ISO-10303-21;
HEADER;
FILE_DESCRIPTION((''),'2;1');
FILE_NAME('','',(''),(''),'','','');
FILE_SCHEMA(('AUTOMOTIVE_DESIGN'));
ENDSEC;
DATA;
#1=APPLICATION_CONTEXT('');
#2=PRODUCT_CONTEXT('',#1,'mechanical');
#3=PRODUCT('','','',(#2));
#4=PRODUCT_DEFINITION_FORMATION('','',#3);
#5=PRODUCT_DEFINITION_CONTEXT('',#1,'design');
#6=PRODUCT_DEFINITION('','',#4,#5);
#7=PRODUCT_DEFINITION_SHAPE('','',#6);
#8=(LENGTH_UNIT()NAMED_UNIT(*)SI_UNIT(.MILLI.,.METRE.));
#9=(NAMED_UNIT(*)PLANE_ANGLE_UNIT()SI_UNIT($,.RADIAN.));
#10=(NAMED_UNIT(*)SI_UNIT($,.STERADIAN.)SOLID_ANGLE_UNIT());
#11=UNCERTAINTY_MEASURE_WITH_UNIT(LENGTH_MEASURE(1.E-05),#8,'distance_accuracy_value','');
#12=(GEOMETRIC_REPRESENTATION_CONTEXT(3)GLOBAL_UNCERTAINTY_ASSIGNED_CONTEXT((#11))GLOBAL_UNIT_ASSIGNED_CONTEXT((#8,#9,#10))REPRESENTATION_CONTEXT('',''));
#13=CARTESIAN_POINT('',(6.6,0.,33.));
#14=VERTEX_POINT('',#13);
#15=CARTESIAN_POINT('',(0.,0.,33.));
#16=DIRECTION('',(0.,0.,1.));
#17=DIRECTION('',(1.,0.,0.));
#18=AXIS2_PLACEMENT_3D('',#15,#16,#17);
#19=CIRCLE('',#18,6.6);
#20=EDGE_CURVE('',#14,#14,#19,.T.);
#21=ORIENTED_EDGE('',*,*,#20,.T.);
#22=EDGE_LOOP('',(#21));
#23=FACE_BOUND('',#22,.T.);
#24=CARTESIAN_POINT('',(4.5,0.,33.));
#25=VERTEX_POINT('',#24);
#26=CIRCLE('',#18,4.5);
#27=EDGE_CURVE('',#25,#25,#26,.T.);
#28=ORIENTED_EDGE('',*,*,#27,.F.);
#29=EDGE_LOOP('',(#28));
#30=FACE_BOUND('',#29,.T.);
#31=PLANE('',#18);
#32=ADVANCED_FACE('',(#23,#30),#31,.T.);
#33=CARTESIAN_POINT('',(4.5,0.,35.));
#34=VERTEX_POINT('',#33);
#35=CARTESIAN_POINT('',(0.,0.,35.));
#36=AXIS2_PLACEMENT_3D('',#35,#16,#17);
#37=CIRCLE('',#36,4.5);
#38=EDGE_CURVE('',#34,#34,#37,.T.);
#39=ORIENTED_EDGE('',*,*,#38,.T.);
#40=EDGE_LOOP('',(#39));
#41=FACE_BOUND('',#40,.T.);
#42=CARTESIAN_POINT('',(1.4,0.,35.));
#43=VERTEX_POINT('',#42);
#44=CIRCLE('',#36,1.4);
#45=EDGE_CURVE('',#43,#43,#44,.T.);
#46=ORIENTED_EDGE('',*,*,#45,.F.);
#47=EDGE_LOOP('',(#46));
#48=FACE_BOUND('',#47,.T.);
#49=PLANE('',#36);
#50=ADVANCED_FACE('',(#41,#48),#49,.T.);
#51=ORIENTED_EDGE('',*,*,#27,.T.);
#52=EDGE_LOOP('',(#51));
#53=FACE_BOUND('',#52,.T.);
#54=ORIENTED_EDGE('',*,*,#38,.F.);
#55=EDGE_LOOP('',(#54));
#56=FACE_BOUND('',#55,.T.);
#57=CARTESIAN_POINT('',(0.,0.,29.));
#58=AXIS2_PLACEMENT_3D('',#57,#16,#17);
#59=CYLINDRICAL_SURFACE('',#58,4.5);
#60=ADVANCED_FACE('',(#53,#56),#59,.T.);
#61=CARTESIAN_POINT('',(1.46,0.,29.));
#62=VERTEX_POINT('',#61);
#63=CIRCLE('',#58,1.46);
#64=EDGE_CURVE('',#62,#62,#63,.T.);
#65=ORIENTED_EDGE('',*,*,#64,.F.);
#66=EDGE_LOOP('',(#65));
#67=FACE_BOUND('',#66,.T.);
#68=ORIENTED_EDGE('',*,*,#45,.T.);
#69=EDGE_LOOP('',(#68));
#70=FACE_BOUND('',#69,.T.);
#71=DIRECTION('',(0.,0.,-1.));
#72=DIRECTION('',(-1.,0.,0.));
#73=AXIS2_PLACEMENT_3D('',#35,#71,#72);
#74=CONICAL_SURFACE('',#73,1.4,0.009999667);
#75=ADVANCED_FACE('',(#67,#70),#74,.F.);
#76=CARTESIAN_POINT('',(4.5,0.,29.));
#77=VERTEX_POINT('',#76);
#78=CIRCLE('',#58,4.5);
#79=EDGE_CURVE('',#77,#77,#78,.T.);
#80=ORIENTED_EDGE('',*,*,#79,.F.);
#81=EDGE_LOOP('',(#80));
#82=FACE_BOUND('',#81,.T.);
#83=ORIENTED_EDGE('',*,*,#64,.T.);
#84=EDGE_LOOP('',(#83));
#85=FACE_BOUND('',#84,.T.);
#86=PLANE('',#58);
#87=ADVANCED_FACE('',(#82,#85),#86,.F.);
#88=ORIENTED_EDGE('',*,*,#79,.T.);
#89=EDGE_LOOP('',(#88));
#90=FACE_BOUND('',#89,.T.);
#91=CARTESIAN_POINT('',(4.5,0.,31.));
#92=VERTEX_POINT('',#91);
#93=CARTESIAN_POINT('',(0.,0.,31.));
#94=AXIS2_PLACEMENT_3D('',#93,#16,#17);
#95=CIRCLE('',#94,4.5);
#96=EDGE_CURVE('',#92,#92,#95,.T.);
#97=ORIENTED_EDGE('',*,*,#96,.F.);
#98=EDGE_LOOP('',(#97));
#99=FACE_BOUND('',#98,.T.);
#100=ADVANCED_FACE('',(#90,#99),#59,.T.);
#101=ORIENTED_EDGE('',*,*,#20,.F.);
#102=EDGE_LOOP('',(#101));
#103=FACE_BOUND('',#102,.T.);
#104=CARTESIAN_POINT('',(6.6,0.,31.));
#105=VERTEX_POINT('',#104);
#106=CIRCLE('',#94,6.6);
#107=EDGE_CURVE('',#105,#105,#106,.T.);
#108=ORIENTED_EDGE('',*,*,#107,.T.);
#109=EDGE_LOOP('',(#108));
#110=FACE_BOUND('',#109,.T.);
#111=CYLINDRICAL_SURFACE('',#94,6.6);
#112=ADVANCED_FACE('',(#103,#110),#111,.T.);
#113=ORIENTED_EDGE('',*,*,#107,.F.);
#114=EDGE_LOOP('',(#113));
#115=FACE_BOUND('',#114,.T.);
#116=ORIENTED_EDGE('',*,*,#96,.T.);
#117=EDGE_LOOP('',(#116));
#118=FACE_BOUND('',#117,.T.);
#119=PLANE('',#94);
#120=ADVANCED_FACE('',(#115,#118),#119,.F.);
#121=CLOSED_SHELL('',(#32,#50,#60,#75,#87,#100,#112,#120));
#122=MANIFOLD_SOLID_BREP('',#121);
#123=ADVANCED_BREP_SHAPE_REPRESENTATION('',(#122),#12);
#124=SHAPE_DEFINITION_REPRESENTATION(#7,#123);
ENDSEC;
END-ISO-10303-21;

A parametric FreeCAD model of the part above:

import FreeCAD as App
import Part
import Sketcher

V = App.Vector
Q = App.Units.Quantity

doc = App.newDocument("Part")
params = doc.addObject("Spreadsheet::Sheet", "Params")
for row, (alias, value) in enumerate([
    ("sketch1_diameter", "13.2 mm"),
    ("pad1_length", "2 mm"),
    ("sketch2_diameter", "9 mm"),
    ("pad2_length", "2 mm"),
    ("pad2_length2", "4 mm"),
    ("sketch3_diameter", "2.8 mm"),
    ("sketch4_diameter", "2.92 mm"),
], start=1):
    params.set(f"A{row}", alias)
    params.set(f"B{row}", "=" + value)
    params.setAlias(f"B{row}", alias)

body = doc.addObject("PartDesign::Body", "Body")

sketch1 = doc.addObject("Sketcher::SketchObject", "Sketch")
body.addObject(sketch1)
sketch1.AttachmentSupport = (doc.XY_Plane, [""])
sketch1.MapMode = "FlatFace"
sketch1.AttachmentOffset = App.Placement(V(0, 0, 33), App.Rotation())
sketch1.addGeometry(Part.Circle(V(0, 0, 0), V(0, 0, 1), 7), False)
sketch1.addConstraint(Sketcher.Constraint("Coincident", 0, 3, -1, 1))
sketch1.addConstraint(Sketcher.Constraint("Diameter", 0, Q("13.2 mm")))
sketch1.setExpression("Constraints[1]", "Params.sketch1_diameter")
pad1 = doc.addObject("PartDesign::Pad", "Pad")
body.addObject(pad1)
pad1.Profile = sketch1
pad1.setExpression("Length", "Params.pad1_length")
pad1.Reversed = True

sketch2 = doc.addObject("Sketcher::SketchObject", "Sketch001")
body.addObject(sketch2)
sketch2.AttachmentSupport = (doc.XY_Plane, [""])
sketch2.MapMode = "FlatFace"
sketch2.AttachmentOffset = App.Placement(V(0, 0, 33), App.Rotation())
sketch2.addGeometry(Part.Circle(V(0, 0, 0), V(0, 0, 1), 4.5), False)
sketch2.addConstraint(Sketcher.Constraint("Coincident", 0, 3, -1, 1))
sketch2.addConstraint(Sketcher.Constraint("Diameter", 0, Q("9 mm")))
sketch2.setExpression("Constraints[1]", "Params.sketch2_diameter")
pad2 = doc.addObject("PartDesign::Pad", "Pad001")
body.addObject(pad2)
pad2.Profile = sketch2
pad2.Type = "TwoLengths"
pad2.setExpression("Length", "Params.pad2_length")
pad2.setExpression("Length2", "Params.pad2_length2")

sketch3 = doc.addObject("Sketcher::SketchObject", "Sketch002")
body.addObject(sketch3)
sketch3.AttachmentSupport = (doc.XY_Plane, [""])
sketch3.MapMode = "FlatFace"
sketch3.AttachmentOffset = App.Placement(V(0, 0, 35), App.Rotation())
sketch3.addGeometry(Part.Circle(V(0, 0, 0), V(0, 0, 1), 1.4), False)
sketch3.addConstraint(Sketcher.Constraint("Coincident", 0, 3, -1, 1))
sketch3.addConstraint(Sketcher.Constraint("Diameter", 0, Q("2.8 mm")))
sketch3.setExpression("Constraints[1]", "Params.sketch3_diameter")

sketch4 = doc.addObject("Sketcher::SketchObject", "Sketch003")
body.addObject(sketch4)
sketch4.AttachmentSupport = (doc.XY_Plane, [""])
sketch4.MapMode = "FlatFace"
sketch4.AttachmentOffset = App.Placement(V(0, 0, 29), App.Rotation())
sketch4.addGeometry(Part.Circle(V(0, 0, 0), V(0, 0, 1), 1.5), False)
sketch4.addConstraint(Sketcher.Constraint("Coincident", 0, 3, -1, 1))
sketch4.addConstraint(Sketcher.Constraint("Diameter", 0, Q("2.92 mm")))
sketch4.setExpression("Constraints[1]", "Params.sketch4_diameter")

subtractiveloft = doc.addObject("PartDesign::SubtractiveLoft", "SubtractiveLoft")
body.addObject(subtractiveloft)
subtractiveloft.Profile = sketch3
subtractiveloft.Sections = [sketch4]

doc.recompute()
